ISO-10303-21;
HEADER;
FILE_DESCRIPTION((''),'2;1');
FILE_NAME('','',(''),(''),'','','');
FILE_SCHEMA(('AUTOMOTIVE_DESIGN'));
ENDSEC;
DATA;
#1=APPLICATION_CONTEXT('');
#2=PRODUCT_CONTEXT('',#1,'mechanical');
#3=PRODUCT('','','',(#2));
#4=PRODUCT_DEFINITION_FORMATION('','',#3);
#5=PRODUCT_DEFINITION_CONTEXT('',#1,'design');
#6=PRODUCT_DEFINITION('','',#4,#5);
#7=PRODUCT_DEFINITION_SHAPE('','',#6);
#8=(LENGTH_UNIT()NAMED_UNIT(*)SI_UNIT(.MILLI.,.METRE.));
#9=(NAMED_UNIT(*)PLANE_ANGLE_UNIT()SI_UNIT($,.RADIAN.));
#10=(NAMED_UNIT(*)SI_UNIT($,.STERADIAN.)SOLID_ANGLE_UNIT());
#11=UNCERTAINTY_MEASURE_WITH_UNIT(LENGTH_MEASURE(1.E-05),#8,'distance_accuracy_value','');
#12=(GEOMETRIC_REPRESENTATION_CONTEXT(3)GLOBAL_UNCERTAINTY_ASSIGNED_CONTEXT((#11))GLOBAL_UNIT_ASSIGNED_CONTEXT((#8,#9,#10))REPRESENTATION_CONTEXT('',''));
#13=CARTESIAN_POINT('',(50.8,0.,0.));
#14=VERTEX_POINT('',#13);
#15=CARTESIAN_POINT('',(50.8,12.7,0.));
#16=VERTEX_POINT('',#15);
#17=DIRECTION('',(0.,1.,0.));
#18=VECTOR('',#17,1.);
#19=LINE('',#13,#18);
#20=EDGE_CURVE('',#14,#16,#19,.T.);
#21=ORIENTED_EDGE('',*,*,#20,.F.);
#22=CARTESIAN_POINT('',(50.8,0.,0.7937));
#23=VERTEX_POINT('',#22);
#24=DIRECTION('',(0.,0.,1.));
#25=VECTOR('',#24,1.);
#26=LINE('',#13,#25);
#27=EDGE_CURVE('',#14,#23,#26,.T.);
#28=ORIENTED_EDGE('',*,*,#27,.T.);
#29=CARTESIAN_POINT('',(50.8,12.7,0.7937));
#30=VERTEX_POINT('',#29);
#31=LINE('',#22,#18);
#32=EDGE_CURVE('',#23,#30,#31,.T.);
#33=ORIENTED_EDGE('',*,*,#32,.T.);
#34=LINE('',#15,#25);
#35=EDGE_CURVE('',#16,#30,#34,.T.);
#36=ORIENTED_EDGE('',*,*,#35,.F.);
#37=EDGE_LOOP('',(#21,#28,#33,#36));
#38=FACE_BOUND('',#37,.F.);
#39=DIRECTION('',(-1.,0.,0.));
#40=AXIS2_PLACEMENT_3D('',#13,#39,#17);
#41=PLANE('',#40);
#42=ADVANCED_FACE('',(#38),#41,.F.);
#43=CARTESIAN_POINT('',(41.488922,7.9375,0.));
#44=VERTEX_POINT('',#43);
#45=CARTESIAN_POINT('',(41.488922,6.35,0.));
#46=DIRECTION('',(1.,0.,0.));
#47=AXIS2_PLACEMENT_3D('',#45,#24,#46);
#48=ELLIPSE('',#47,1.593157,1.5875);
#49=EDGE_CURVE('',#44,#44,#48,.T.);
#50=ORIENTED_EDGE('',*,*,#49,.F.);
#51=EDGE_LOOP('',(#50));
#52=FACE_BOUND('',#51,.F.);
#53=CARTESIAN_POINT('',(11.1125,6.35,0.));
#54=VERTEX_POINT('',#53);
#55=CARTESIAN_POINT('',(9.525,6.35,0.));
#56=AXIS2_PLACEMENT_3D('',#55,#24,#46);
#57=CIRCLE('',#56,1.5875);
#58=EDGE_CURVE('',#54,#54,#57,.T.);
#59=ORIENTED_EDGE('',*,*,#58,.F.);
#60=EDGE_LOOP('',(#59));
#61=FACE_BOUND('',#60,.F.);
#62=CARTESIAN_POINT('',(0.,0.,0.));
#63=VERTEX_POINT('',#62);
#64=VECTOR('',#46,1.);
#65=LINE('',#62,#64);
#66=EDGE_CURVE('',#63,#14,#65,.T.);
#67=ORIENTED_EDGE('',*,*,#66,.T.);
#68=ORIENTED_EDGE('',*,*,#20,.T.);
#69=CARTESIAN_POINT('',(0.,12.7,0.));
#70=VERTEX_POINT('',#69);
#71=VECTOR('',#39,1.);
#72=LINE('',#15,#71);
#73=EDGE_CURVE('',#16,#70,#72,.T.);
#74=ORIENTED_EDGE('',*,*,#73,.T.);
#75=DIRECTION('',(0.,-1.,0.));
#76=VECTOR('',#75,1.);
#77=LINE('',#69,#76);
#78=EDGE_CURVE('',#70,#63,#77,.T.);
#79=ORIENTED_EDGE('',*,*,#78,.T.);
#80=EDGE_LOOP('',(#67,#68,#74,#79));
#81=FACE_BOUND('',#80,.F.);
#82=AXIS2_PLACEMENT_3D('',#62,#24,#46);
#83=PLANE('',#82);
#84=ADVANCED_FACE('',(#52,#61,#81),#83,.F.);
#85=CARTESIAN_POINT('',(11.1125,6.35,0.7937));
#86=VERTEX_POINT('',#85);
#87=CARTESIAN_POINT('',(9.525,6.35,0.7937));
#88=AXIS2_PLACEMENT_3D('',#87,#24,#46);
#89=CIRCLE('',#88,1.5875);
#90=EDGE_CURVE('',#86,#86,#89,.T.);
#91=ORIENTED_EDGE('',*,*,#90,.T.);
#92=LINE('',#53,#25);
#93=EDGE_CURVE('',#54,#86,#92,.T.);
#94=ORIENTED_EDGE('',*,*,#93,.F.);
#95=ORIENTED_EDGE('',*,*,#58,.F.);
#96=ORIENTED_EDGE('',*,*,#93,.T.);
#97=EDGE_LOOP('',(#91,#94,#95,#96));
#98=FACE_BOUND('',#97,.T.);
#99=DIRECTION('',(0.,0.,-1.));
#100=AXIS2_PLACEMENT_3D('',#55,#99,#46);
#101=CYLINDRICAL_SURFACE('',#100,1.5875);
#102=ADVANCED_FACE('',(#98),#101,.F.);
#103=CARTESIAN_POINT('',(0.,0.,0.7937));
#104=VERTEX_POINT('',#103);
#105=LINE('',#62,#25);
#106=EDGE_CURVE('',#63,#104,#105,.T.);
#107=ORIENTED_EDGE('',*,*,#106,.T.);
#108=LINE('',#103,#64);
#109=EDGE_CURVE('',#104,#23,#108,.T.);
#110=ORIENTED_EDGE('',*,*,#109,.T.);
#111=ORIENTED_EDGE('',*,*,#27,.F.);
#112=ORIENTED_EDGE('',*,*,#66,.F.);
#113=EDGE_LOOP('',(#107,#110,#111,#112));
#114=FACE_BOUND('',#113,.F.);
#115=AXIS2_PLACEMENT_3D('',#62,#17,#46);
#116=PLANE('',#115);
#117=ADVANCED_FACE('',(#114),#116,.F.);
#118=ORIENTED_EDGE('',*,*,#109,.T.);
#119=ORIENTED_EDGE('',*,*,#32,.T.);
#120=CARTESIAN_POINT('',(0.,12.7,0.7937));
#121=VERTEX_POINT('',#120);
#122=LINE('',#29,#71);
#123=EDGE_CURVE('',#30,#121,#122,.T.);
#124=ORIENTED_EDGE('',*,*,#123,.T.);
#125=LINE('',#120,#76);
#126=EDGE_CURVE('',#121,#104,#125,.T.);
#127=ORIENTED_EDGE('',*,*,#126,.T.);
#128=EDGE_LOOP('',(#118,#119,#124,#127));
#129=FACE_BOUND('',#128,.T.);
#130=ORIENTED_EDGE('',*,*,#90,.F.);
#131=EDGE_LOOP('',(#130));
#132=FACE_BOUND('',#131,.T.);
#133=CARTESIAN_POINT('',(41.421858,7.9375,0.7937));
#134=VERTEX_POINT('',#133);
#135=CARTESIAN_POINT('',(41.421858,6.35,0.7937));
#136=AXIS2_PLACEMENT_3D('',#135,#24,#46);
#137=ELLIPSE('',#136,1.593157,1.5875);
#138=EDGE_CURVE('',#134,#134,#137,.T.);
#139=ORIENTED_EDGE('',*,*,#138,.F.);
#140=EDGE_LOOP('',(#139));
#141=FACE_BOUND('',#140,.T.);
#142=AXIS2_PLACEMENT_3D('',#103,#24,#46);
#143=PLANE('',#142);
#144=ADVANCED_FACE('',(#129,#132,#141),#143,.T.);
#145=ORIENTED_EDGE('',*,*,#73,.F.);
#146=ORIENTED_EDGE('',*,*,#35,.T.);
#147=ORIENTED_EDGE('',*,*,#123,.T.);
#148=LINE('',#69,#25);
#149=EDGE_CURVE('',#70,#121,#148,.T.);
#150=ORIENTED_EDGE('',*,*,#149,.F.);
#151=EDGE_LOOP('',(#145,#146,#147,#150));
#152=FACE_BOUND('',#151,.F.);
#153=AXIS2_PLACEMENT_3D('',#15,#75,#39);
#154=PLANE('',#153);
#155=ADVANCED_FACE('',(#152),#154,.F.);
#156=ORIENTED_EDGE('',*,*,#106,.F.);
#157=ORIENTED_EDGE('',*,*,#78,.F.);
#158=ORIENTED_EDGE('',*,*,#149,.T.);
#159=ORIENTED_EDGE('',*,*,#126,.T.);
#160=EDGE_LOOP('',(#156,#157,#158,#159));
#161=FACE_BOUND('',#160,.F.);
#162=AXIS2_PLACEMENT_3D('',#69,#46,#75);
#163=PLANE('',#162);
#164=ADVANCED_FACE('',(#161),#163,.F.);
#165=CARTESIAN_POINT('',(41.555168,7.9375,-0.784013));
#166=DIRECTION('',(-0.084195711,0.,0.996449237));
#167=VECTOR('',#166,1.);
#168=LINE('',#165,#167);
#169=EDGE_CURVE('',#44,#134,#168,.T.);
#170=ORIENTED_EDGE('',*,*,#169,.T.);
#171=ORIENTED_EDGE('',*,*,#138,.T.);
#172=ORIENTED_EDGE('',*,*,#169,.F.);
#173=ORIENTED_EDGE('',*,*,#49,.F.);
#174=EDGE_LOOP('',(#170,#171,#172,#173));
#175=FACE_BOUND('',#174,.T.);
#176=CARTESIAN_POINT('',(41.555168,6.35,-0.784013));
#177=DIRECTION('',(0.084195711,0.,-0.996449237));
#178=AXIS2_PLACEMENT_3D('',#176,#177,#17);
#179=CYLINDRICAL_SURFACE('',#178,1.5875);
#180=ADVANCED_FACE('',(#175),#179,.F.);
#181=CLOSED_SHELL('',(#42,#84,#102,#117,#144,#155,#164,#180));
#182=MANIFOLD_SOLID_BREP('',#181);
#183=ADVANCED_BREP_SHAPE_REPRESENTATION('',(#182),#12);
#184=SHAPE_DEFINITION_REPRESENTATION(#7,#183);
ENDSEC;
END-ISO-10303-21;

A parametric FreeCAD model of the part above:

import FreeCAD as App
import Part
import Sketcher

V = App.Vector
Q = App.Units.Quantity

doc = App.newDocument("Part")
body = doc.addObject("PartDesign::Body", "Body")

# Sketch on XY plane
sketch1 = body.newObject("Sketcher::SketchObject", "Sketch")
sketch1.AttachmentSupport = (doc.getObject("XY_Plane"), [""])
sketch1.MapMode = "FlatFace"
sketch1.addGeometry(Part.LineSegment(V(0, 12.7, 0), V(0, 0, 0)), False)
sketch1.addGeometry(Part.LineSegment(V(0, 0, 0), V(50.8, 0, 0)), False)
sketch1.addGeometry(Part.LineSegment(V(50.8, 0, 0), V(50.8, 12.7, 0)), False)
sketch1.addGeometry(Part.LineSegment(V(50.8, 12.7, 0), V(0, 12.7, 0)), False)
sketch1.addGeometry(Part.Circle(V(9.5, 6.3, 0), V(0, 0, 1), 1.6), False)
sketch1.addConstraint(Sketcher.Constraint("Coincident", 0, 2, 1, 1))
sketch1.addConstraint(Sketcher.Constraint("Coincident", 1, 2, 2, 1))
sketch1.addConstraint(Sketcher.Constraint("Coincident", 2, 2, 3, 1))
sketch1.addConstraint(Sketcher.Constraint("Coincident", 3, 2, 0, 1))
sketch1.addConstraint(Sketcher.Constraint("Vertical", 0))
sketch1.addConstraint(Sketcher.Constraint("Horizontal", 1))
sketch1.addConstraint(Sketcher.Constraint("Vertical", 2))
sketch1.addConstraint(Sketcher.Constraint("Horizontal", 3))
sketch1.addConstraint(Sketcher.Constraint("Coincident", 0, 2, -1, 1))
sketch1.addConstraint(Sketcher.Constraint("DistanceX", 1, 1, 1, 2, Q("2 in")))
sketch1.addConstraint(Sketcher.Constraint("Diameter", 4, Q("0.125 in")))
sketch1.addConstraint(Sketcher.Constraint("DistanceY", 0, 2, 0, 1, Q("0.5 in")))
sketch1.addConstraint(Sketcher.Constraint("DistanceX", -1, 1, 4, 3, Q("0.375 in")))
sketch1.addConstraint(Sketcher.Constraint("DistanceY", -1, 1, 4, 3, Q("0.25 in")))
pad1 = body.newObject("PartDesign::Pad", "Pad")
pad1.Profile = sketch1
pad1.Length = Q("0.031248 in")

# Sketch on an angled plane
sketch2 = body.newObject("Sketcher::SketchObject", "Sketch001")
sketch2.Placement = App.Placement(V(117.4846, -2.3812, 5.6317), App.Rotation(V(0, 1, 0), V(-0.996449237, 0, -0.084195711), V(-0.084195711, 0, 0.996449237), "ZXY"))
sketch2.addGeometry(Part.Circle(V(8.7, 76.2, 0), V(0, 0, 1), 1.6), False)
sketch2.addConstraint(Sketcher.Constraint("Diameter", 0, Q("0.125 in")))
sketch2.addConstraint(Sketcher.Constraint("DistanceY", -1, 1, 0, 3, Q("3 in")))
sketch2.addConstraint(Sketcher.Constraint("DistanceX", -1, 1, 0, 3, Q("0.343748 in")))
pocket1 = body.newObject("PartDesign::Pocket", "Pocket")
pocket1.Profile = sketch2
pocket1.Type = "ThroughAll"
pocket1.Reversed = True

doc.recompute()
